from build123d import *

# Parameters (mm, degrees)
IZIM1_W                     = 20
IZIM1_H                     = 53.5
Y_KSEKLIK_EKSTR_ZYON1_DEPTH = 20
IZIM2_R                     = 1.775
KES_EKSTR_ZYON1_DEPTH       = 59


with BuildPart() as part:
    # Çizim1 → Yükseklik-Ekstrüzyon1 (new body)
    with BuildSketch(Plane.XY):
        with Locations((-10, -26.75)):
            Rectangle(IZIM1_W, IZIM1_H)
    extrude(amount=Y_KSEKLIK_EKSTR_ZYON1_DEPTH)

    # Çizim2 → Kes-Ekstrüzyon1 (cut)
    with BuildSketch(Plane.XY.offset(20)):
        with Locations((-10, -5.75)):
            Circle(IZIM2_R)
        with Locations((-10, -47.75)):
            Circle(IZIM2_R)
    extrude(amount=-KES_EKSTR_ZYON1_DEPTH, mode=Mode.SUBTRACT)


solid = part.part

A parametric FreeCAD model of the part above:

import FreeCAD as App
import Part
import Sketcher

doc = App.newDocument("Part")
body = doc.addObject("PartDesign::Body", "Body")

# Sketch on XY plane
sketch1 = doc.addObject("Sketcher::SketchObject", "Sketch")
body.addObject(sketch1)
sketch1.AttachmentSupport = (doc.XY_Plane, [""])
sketch1.MapMode = "FlatFace"
sketch1.addGeometry([
    Part.LineSegment(App.Vector(-20, 0, 0), App.Vector(-20, -54, 0)),
    Part.LineSegment(App.Vector(-20, -54, 0), App.Vector(0, -54, 0)),
    Part.LineSegment(App.Vector(0, -54, 0), App.Vector(0, 0, 0)),
    Part.LineSegment(App.Vector(0, 0, 0), App.Vector(-20, 0, 0)),
], False)
sketch1.addConstraint([
    Sketcher.Constraint("Coincident", 0, 2, 1, 1),
    Sketcher.Constraint("Coincident", 1, 2, 2, 1),
    Sketcher.Constraint("Coincident", 2, 2, 3, 1),
    Sketcher.Constraint("Coincident", 3, 2, 0, 1),
    Sketcher.Constraint("Vertical", 0),
    Sketcher.Constraint("Horizontal", 1),
    Sketcher.Constraint("Vertical", 2),
    Sketcher.Constraint("Horizontal", 3),
    Sketcher.Constraint("Coincident", 2, 2, -1, 1),
    Sketcher.Constraint("DistanceX", 1, 1, 1, 2, 20.0),
    Sketcher.Constraint("DistanceY", 0, 2, 0, 1, 53.5),
])
pad1 = doc.addObject("PartDesign::Pad", "Pad")
body.addObject(pad1)
pad1.Profile = sketch1
pad1.Length = 20

# Sketch on XY plane
sketch2 = doc.addObject("Sketcher::SketchObject", "Sketch001")
body.addObject(sketch2)
sketch2.AttachmentSupport = (doc.XY_Plane, [""])
sketch2.MapMode = "FlatFace"
sketch2.AttachmentOffset = App.Placement(App.Vector(0, 0, 20), App.Rotation())
sketch2.addGeometry([
    Part.Circle(App.Vector(-10, -5.8, 0), App.Vector(0, 0, 1), 1.8),
    Part.Circle(App.Vector(-10, -47.8, 0), App.Vector(0, 0, 1), 1.8),
], False)
sketch2.addConstraint([
    Sketcher.Constraint("Equal", 0, 1),
    Sketcher.Constraint("Vertical", 0, 3, 1, 3),
    Sketcher.Constraint("Diameter", 0, 3.55),
    Sketcher.Constraint("DistanceX", 0, 3, -1, 1, 10.0),
    Sketcher.Constraint("DistanceY", 1, 3, 0, 3, 42.0),
    Sketcher.Constraint("DistanceY", 0, 3, -1, 1, 5.75),
])
pocket1 = doc.addObject("PartDesign::Pocket", "Pocket")
body.addObject(pocket1)
pocket1.Profile = sketch2
pocket1.Length = 59

doc.recompute()
